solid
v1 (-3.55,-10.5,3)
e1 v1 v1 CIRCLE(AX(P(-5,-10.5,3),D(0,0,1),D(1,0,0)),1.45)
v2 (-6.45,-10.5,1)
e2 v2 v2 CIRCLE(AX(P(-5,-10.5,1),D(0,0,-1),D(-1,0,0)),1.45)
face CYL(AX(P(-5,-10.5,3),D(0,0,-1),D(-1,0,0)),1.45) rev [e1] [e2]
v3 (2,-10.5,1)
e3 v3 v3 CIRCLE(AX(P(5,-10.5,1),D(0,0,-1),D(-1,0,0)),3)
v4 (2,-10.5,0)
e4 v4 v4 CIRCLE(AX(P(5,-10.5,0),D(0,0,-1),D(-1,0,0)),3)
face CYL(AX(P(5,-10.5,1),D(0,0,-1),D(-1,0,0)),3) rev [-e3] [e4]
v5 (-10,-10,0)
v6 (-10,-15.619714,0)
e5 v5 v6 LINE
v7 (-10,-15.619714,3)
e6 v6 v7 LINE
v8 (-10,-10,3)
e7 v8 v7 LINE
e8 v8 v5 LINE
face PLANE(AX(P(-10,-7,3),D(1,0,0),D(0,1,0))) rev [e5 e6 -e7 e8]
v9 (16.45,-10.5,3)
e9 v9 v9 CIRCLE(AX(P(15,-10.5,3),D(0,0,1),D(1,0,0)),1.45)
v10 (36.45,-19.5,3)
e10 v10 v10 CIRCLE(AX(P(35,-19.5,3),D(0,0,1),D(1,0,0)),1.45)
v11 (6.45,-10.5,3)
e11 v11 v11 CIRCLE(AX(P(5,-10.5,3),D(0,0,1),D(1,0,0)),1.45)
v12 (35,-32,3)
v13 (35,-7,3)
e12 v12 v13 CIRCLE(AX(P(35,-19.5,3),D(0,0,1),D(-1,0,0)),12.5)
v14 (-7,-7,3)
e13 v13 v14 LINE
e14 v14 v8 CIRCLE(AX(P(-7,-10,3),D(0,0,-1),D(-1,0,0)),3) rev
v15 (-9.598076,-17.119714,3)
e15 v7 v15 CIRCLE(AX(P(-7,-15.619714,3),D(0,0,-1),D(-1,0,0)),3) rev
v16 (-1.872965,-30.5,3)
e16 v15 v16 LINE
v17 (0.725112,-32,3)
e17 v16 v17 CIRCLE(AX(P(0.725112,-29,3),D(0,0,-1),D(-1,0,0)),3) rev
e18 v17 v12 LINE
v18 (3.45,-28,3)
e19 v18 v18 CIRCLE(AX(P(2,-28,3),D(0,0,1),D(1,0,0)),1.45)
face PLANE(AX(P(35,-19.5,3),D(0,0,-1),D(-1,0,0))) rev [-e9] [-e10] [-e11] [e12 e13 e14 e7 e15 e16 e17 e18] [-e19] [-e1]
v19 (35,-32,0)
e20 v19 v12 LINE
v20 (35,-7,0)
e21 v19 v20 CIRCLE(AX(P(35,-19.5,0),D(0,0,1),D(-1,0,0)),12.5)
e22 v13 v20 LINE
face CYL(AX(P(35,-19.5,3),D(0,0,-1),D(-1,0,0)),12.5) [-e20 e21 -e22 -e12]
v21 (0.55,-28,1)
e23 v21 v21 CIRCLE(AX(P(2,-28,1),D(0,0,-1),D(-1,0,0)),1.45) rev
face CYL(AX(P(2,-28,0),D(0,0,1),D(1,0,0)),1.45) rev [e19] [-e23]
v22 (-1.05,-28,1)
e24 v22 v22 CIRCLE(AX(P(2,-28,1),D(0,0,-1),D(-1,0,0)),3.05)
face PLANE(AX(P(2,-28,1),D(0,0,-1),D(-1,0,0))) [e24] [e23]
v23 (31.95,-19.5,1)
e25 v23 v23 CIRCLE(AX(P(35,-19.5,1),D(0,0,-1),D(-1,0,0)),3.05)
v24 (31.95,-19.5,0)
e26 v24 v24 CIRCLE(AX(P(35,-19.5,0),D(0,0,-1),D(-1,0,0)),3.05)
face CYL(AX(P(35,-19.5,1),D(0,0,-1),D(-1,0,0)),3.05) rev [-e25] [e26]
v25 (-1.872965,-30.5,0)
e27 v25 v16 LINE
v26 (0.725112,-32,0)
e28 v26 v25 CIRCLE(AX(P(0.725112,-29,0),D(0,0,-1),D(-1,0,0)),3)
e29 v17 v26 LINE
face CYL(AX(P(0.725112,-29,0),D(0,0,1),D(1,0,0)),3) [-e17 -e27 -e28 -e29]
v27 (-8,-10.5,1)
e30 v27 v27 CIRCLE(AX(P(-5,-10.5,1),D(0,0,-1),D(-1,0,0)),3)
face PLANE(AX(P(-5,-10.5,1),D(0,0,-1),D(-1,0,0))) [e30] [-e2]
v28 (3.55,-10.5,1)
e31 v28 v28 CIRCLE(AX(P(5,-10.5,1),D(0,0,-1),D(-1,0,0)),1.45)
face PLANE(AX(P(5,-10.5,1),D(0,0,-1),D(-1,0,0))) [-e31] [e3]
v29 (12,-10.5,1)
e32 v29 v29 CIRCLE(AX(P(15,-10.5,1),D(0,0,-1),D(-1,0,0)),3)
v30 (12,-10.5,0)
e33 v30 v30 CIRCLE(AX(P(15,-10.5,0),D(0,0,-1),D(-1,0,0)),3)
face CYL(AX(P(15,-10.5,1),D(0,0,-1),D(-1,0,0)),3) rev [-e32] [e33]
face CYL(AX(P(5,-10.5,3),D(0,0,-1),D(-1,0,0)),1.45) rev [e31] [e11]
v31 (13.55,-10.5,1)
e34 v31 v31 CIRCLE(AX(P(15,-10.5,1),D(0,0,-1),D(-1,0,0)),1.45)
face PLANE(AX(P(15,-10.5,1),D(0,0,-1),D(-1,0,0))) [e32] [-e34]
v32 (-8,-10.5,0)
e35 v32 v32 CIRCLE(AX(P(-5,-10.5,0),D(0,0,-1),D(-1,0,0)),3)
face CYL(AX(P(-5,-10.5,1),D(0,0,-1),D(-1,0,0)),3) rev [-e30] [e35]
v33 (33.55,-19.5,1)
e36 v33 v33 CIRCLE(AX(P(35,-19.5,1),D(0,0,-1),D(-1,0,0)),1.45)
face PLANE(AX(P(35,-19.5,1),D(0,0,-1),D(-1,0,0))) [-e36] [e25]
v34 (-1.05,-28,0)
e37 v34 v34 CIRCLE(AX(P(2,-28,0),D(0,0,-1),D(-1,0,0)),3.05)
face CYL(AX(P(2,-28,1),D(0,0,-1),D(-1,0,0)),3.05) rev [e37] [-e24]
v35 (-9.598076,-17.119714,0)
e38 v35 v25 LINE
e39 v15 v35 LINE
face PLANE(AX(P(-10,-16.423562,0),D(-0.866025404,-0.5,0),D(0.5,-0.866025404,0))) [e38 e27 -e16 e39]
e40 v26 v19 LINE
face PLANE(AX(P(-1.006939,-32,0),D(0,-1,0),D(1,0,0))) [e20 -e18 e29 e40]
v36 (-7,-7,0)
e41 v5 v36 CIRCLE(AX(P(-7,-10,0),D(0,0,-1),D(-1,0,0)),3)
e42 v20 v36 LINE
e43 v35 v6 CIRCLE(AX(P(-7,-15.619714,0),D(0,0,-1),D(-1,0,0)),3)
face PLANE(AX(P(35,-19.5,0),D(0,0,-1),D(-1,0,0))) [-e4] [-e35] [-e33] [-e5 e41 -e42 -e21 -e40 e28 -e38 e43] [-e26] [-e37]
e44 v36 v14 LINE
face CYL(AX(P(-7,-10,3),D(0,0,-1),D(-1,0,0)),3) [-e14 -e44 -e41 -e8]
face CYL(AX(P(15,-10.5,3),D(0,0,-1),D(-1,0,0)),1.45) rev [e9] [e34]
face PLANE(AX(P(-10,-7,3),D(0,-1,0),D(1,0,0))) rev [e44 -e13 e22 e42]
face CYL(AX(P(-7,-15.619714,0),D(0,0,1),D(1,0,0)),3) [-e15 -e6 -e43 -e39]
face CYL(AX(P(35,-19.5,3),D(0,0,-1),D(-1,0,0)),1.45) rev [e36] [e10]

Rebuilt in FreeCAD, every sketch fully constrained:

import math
import FreeCAD as App
import Part
import Sketcher
from FreeCAD import Vector
Q = App.Units.Quantity


def edges_at(feature, points):
    """Names of the edges that pass closest to the given points."""
    edges = feature.Shape.Edges
    near = lambda p: min(range(len(edges)), key=lambda i: edges[i].distToShape(Part.Vertex(*p))[0])
    return sorted({f"Edge{near(p) + 1}" for p in points})


def add_polygon(sketch, points):
    """Adds a closed chain of lines whose ends are joined by coincident constraints."""
    first, n = sketch.GeometryCount, len(points)
    for a, b in zip(points, points[1:] + points[:1]):
        sketch.addGeometry(Part.LineSegment(App.Vector(*a, 0), App.Vector(*b, 0)), False)
    for i in range(n):
        sketch.addConstraint(Sketcher.Constraint("Coincident", first + i, 2, first + (i + 1) % n, 1))

doc = App.newDocument("Part")
body = doc.addObject("PartDesign::Body", "Body")

sketch1 = body.newObject("Sketcher::SketchObject", "Sketch")
sketch1.AttachmentSupport = (doc.getObject("XY_Plane"), [""])
sketch1.MapMode = "FlatFace"
sketch1.addGeometry(Part.LineSegment(Vector(-10, -7, 0), Vector(-10, -16.4, 0)), False)
sketch1.addGeometry(Part.LineSegment(Vector(-10, -16.4, 0), Vector(30.7, -31.2, 0)), False)
sketch1.addGeometry(Part.ArcOfCircle(Part.Circle(Vector(35, -19.5, 0), Vector(0, 0, 1), 12.5), math.radians(-110), math.radians(90)), False)
sketch1.addGeometry(Part.LineSegment(Vector(35, -7, 0), Vector(-10, -7, 0)), False)
sketch1.addGeometry(Part.Circle(Vector(35, -19.5, 0), Vector(0, 0, 1), 1.4), False)
sketch1.addGeometry(Part.Circle(Vector(-5, -10.5, 0), Vector(0, 0, 1), 1.4), False)
sketch1.addGeometry(Part.Circle(Vector(5, -10.5, 0), Vector(0, 0, 1), 1.4), False)
sketch1.addGeometry(Part.Circle(Vector(15, -10.5, 0), Vector(0, 0, 1), 1.4), False)
sketch1.addConstraint(Sketcher.Constraint("Coincident", 0, 2, 1, 1))
sketch1.addConstraint(Sketcher.Constraint("Tangent", 1, 2, 2, 1))
sketch1.addConstraint(Sketcher.Constraint("Tangent", 2, 2, 3, 1))
sketch1.addConstraint(Sketcher.Constraint("Coincident", 3, 2, 0, 1))
sketch1.addConstraint(Sketcher.Constraint("Vertical", 0))
sketch1.addConstraint(Sketcher.Constraint("Horizontal", 3))
sketch1.addConstraint(Sketcher.Constraint("Coincident", 4, 3, 2, 3))
sketch1.addConstraint(Sketcher.Constraint("Equal", 4, 5))
sketch1.addConstraint(Sketcher.Constraint("Equal", 5, 6))
sketch1.addConstraint(Sketcher.Constraint("Equal", 6, 7))
sketch1.addConstraint(Sketcher.Constraint("Symmetric", 5, 3, 6, 3, -2))
sketch1.addConstraint(Sketcher.Constraint("Horizontal", 6, 3, 7, 3))
sketch1.addConstraint(Sketcher.Constraint("Diameter", 4, Q("2.9 mm")))
sketch1.addConstraint(Sketcher.Constraint("Radius", 2, Q("12.5 mm")))
sketch1.addConstraint(Sketcher.Constraint("DistanceX", 3, 2, 3, 1, Q("45 mm")))
sketch1.addConstraint(Sketcher.Constraint("Angle", 1, Q("-20 deg")))
sketch1.addConstraint(Sketcher.Constraint("DistanceX", -1, 1, 2, 3, Q("35 mm")))
sketch1.addConstraint(Sketcher.Constraint("DistanceX", 5, 3, -1, 1, Q("5 mm")))
sketch1.addConstraint(Sketcher.Constraint("DistanceX", -1, 1, 7, 3, Q("15 mm")))
sketch1.addConstraint(Sketcher.Constraint("DistanceY", 2, 2, -1, 1, Q("7 mm")))
sketch1.addConstraint(Sketcher.Constraint("DistanceY", 2, 3, 5, 3, Q("9 mm")))
pad1 = body.newObject("PartDesign::Pad", "Pad")
pad1.Profile = sketch1
pad1.Length = 3

sketch2 = body.newObject("Sketcher::SketchObject", "Sketch001")
sketch2.AttachmentSupport = (doc.getObject("XY_Plane"), [""])
sketch2.MapMode = "FlatFace"
sketch2.AttachmentOffset = App.Placement(Vector(0, 0, 3), App.Rotation())
add_polygon(sketch2, [(32.8, -32), (-10, -16.4), (-1, -32)])
sketch2.addGeometry(Part.Circle(Vector(2, -28, 0), Vector(0, 0, 1), 1.4), False)
sketch2.addConstraint(Sketcher.Constraint("Horizontal", 2))
sketch2.addConstraint(Sketcher.Constraint("Diameter", 3, Q("2.9 mm")))
sketch2.addConstraint(Sketcher.Constraint("Angle", 0, Q("160 deg")))
sketch2.addConstraint(Sketcher.Constraint("Angle", 1, Q("-60 deg")))
sketch2.addConstraint(Sketcher.Constraint("DistanceX", -1, 1, 3, 3, Q("2 mm")))
sketch2.addConstraint(Sketcher.Constraint("DistanceY", 3, 3, -1, 1, Q("28 mm")))
sketch2.addConstraint(Sketcher.Constraint("DistanceX", 0, 2, -1, 1, Q("10 mm")))
sketch2.addConstraint(Sketcher.Constraint("DistanceY", 1, 2, -1, 1, Q("32 mm")))
sketch2.addConstraint(Sketcher.Constraint("DistanceX", 2, 1, 2, 2, Q("33.802852 mm")))
pad2 = body.newObject("PartDesign::Pad", "Pad001")
pad2.Profile = sketch2
pad2.Length = 3
pad2.Reversed = True

sketch3 = body.newObject("Sketcher::SketchObject", "Sketch002")
sketch3.AttachmentSupport = (doc.getObject("XY_Plane"), [""])
sketch3.MapMode = "FlatFace"
sketch3.addGeometry(Part.Circle(Vector(15, -10.5, 0), Vector(0, 0, 1), 3), False)
sketch3.addGeometry(Part.Circle(Vector(5, -10.5, 0), Vector(0, 0, 1), 3), False)
sketch3.addGeometry(Part.Circle(Vector(-5, -10.5, 0), Vector(0, 0, 1), 3), False)
sketch3.addConstraint(Sketcher.Constraint("Equal", 0, 1))
sketch3.addConstraint(Sketcher.Constraint("Equal", 1, 2))
sketch3.addConstraint(Sketcher.Constraint("Symmetric", 1, 3, 2, 3, -2))
sketch3.addConstraint(Sketcher.Constraint("Horizontal", 0, 3, 1, 3))
sketch3.addConstraint(Sketcher.Constraint("Diameter", 0, Q("6 mm")))
sketch3.addConstraint(Sketcher.Constraint("DistanceX", -1, 1, 0, 3, Q("15 mm")))
sketch3.addConstraint(Sketcher.Constraint("DistanceX", -1, 1, 1, 3, Q("5 mm")))
sketch3.addConstraint(Sketcher.Constraint("DistanceY", 0, 3, -1, 1, Q("10.5 mm")))
pocket1 = body.newObject("PartDesign::Pocket", "Pocket")
pocket1.Profile = sketch3
pocket1.Length = 1
pocket1.Reversed = True

sketch4 = body.newObject("Sketcher::SketchObject", "Sketch003")
sketch4.AttachmentSupport = (doc.getObject("XY_Plane"), [""])
sketch4.MapMode = "FlatFace"
sketch4.AttachmentOffset = App.Placement(Vector(0, 0, 3), App.Rotation())
add_polygon(sketch4, [(32.8, -32), (35, -32), (30.7, -31.2)])
sketch4.addConstraint(Sketcher.Constraint("Horizontal", 0))
sketch4.addConstraint(Sketcher.Constraint("Angle", 1, Q("170 deg")))
sketch4.addConstraint(Sketcher.Constraint("Angle", 2, Q("-20 deg")))
sketch4.addConstraint(Sketcher.Constraint("DistanceX", -1, 1, 0, 2, Q("35 mm")))
sketch4.addConstraint(Sketcher.Constraint("DistanceY", 0, 2, -1, 1, Q("32 mm")))
sketch4.addConstraint(Sketcher.Constraint("DistanceX", 0, 1, 0, 2, Q("2.204087 mm")))
pad3 = body.newObject("PartDesign::Pad", "Pad002")
pad3.Profile = sketch4
pad3.Length = 3
pad3.Reversed = True

sketch5 = body.newObject("Sketcher::SketchObject", "Sketch004")
sketch5.AttachmentSupport = (doc.getObject("XY_Plane"), [""])
sketch5.MapMode = "FlatFace"
sketch5.addGeometry(Part.Circle(Vector(2, -28, 0), Vector(0, 0, 1), 3), False)
sketch5.addConstraint(Sketcher.Constraint("Diameter", 0, Q("6.1 mm")))
sketch5.addConstraint(Sketcher.Constraint("DistanceX", -1, 1, 0, 3, Q("2 mm")))
sketch5.addConstraint(Sketcher.Constraint("DistanceY", 0, 3, -1, 1, Q("28 mm")))
pocket2 = body.newObject("PartDesign::Pocket", "Pocket001")
pocket2.Profile = sketch5
pocket2.Length = 1
pocket2.Reversed = True
doc.recompute()

fillet = body.newObject("PartDesign::Fillet", "Fillet")
fillet.Base = (pocket2, edges_at(pocket2, [(-1.007, -32, 1.5), (-10, -16.424, 1.5), (-10, -7, 1.5)]))
fillet.Radius = 3

sketch6 = body.newObject("Sketcher::SketchObject", "Sketch005")
sketch6.AttachmentSupport = (doc.getObject("XY_Plane"), [""])
sketch6.MapMode = "FlatFace"
sketch6.addGeometry(Part.Circle(Vector(35, -19.5, 0), Vector(0, 0, 1), 3), False)
sketch6.addConstraint(Sketcher.Constraint("Diameter", 0, Q("6.1 mm")))
sketch6.addConstraint(Sketcher.Constraint("DistanceX", -1, 1, 0, 3, Q("35 mm")))
sketch6.addConstraint(Sketcher.Constraint("DistanceY", 0, 3, -1, 1, Q("19.5 mm")))
pocket3 = body.newObject("PartDesign::Pocket", "Pocket002")
pocket3.Profile = sketch6
pocket3.Length = 1
pocket3.Reversed = True

doc.recompute()
